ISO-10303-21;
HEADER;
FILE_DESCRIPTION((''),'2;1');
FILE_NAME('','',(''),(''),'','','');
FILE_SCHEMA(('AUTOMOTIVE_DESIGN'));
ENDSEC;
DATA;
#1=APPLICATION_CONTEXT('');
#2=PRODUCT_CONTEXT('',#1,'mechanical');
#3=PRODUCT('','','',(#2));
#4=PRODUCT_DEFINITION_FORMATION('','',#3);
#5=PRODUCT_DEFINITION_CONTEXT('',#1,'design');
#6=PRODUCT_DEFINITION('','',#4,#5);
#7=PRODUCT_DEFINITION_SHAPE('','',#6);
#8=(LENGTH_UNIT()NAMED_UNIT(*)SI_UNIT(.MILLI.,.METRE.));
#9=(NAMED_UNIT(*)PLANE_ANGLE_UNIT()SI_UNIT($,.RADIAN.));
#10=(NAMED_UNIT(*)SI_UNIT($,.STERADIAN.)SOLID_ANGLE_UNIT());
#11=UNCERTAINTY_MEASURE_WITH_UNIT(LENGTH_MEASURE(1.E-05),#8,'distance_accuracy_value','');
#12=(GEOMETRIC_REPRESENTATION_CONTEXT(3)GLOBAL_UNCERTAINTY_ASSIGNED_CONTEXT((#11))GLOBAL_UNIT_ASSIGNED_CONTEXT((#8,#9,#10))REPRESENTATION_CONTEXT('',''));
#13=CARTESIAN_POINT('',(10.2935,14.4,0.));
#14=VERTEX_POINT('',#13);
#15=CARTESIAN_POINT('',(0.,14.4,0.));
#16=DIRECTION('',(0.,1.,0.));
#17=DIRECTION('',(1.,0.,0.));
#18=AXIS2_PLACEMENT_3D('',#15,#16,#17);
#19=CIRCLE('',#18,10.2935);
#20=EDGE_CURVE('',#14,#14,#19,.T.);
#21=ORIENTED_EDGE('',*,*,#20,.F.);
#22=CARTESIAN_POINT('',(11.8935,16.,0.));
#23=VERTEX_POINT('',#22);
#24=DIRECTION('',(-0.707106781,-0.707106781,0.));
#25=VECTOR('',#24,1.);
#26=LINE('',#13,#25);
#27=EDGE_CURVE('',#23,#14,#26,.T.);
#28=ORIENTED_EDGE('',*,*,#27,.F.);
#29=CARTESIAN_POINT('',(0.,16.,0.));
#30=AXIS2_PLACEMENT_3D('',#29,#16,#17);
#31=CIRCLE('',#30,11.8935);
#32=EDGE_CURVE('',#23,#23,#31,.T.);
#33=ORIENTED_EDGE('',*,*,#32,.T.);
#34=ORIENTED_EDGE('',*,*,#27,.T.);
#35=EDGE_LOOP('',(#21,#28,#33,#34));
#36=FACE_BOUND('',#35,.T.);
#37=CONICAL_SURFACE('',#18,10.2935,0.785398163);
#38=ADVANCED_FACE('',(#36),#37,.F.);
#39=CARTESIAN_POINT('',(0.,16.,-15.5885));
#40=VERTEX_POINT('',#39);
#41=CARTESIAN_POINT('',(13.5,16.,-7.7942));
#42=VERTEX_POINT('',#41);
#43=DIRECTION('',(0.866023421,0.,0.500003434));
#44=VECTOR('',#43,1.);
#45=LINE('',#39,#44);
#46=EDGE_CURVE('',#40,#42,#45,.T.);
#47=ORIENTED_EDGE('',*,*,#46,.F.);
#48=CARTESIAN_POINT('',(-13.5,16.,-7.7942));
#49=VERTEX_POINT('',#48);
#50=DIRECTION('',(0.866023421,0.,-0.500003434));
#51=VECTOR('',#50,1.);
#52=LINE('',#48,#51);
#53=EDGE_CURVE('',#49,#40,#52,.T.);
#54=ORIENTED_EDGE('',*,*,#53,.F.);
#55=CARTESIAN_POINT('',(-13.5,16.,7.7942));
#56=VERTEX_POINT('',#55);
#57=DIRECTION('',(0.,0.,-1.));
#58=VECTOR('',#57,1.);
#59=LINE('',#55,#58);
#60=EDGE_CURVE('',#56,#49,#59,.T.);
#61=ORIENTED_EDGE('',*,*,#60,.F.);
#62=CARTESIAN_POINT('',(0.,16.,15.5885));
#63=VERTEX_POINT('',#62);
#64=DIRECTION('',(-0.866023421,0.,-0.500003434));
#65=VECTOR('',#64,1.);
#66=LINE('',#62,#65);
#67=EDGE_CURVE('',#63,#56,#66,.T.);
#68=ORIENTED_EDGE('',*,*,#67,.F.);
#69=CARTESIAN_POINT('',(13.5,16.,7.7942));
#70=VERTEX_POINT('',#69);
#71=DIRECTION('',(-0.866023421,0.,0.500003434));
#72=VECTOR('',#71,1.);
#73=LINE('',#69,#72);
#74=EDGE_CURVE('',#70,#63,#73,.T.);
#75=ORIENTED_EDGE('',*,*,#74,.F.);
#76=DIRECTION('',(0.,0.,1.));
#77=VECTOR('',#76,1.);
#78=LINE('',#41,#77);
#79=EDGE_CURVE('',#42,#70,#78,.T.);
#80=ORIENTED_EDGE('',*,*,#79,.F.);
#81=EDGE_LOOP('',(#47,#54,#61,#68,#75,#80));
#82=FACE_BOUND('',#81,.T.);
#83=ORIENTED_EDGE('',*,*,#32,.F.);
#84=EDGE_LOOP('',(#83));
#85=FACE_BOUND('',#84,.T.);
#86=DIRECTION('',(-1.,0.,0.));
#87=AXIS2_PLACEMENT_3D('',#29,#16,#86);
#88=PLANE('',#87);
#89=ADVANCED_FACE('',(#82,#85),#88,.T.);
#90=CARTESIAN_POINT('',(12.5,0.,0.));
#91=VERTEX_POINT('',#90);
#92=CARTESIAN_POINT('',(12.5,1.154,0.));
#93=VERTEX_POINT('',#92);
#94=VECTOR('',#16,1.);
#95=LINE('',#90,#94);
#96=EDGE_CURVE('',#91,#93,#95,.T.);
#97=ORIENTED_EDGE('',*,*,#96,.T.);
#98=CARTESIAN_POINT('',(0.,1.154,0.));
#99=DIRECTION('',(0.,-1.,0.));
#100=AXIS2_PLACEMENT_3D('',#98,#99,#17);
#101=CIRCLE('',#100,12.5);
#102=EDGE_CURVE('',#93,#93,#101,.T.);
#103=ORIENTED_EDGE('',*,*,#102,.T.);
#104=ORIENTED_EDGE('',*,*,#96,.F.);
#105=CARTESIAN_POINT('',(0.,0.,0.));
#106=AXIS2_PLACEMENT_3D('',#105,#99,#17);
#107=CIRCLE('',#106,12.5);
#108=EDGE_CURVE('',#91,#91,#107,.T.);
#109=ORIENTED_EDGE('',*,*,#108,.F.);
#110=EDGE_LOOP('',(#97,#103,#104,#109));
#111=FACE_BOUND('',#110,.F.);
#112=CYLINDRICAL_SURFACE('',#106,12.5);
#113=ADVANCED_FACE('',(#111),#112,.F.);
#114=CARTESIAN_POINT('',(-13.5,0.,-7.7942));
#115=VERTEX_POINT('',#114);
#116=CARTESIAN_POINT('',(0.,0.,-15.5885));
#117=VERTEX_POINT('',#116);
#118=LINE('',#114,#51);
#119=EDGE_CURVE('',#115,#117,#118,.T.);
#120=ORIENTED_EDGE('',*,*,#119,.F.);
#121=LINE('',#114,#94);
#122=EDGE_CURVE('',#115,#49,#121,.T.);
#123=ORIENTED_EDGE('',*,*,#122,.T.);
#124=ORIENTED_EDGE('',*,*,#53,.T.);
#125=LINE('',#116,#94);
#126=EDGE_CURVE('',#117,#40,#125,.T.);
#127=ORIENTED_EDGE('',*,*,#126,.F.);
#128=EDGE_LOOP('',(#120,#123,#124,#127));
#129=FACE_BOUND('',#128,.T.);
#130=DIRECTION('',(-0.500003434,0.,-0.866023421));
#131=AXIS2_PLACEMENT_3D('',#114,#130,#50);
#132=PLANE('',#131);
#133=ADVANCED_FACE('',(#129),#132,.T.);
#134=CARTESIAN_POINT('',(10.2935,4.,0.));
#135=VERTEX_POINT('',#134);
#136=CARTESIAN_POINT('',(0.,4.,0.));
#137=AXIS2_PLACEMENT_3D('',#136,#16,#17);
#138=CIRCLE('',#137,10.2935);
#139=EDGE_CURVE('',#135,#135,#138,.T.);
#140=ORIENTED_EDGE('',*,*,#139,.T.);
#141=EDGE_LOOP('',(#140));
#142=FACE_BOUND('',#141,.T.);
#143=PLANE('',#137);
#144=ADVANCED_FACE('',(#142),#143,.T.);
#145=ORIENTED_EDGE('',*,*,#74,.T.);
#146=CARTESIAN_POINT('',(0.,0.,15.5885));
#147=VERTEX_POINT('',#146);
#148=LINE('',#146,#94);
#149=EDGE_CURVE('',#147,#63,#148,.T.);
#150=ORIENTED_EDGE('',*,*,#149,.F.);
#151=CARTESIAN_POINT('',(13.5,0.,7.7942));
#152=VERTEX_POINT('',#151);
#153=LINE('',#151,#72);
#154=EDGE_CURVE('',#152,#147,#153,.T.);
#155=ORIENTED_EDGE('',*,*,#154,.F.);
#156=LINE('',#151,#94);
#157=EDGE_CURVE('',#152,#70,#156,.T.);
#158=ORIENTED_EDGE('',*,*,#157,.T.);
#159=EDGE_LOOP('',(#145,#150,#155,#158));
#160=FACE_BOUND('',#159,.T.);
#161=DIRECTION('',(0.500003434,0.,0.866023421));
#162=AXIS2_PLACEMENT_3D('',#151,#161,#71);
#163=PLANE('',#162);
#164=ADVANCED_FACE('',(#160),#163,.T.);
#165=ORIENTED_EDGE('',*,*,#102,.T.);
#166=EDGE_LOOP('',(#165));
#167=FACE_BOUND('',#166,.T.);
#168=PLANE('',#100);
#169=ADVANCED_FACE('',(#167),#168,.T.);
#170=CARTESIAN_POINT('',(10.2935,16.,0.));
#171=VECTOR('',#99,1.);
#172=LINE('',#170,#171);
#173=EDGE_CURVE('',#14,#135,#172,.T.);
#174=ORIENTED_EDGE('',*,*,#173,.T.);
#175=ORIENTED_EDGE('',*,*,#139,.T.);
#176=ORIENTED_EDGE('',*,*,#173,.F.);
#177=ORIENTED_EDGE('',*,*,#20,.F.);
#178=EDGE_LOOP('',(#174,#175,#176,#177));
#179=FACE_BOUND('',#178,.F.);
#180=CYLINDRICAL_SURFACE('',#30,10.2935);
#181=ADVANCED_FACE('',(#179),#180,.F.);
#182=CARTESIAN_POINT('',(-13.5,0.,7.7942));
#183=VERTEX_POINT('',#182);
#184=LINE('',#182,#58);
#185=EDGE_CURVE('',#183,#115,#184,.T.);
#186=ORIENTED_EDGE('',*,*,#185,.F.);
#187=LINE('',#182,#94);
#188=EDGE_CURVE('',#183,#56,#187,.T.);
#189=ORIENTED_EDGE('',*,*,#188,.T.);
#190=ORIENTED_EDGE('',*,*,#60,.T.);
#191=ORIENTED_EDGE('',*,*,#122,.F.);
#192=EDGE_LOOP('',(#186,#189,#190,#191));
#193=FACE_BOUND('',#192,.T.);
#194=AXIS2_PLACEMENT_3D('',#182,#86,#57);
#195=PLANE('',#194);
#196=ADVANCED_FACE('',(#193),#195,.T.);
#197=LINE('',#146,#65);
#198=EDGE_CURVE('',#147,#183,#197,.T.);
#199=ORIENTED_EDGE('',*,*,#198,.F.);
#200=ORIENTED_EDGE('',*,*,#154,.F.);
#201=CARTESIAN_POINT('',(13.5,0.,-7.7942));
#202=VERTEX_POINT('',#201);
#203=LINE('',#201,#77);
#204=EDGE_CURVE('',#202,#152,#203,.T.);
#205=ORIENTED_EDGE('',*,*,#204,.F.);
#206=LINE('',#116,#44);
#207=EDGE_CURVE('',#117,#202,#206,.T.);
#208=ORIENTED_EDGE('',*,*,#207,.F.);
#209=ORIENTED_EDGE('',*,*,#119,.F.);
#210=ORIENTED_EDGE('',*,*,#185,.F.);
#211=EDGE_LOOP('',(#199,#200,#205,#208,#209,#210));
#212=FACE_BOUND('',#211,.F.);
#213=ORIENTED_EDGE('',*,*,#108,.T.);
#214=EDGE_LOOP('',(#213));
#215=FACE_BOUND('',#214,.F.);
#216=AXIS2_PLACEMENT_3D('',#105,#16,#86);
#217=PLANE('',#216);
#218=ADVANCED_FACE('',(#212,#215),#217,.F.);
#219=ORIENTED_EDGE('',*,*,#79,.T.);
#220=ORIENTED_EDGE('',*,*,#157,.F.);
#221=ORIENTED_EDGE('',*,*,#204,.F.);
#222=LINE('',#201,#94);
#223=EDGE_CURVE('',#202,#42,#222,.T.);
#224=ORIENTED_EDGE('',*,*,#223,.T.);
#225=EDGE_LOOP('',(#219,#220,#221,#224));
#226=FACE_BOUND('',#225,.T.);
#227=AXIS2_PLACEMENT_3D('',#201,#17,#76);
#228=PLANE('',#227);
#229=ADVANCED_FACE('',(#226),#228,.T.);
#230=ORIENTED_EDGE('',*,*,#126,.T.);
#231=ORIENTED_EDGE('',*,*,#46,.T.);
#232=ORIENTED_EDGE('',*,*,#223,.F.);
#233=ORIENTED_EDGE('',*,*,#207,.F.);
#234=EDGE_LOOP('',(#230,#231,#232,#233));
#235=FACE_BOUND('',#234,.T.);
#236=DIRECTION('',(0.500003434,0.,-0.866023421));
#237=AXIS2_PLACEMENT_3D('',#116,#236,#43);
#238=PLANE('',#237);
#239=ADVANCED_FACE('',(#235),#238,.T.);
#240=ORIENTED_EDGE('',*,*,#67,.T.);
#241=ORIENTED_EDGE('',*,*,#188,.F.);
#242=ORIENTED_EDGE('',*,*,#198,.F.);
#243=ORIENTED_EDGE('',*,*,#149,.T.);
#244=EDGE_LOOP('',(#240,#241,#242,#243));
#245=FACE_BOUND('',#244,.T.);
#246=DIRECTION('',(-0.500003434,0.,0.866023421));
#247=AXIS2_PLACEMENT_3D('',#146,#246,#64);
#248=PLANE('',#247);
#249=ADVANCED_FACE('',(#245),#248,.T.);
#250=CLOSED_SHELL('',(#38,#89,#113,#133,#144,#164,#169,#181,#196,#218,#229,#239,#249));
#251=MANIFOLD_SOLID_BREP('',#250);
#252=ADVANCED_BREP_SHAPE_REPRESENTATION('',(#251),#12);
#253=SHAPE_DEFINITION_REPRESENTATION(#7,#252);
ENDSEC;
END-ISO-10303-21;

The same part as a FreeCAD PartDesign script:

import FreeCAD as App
import Part
import Sketcher

V = App.Vector
Q = App.Units.Quantity


def edges_at(feature, points):
    """Names of the edges that pass closest to the given points."""
    edges = feature.Shape.Edges
    near = lambda p: min(range(len(edges)), key=lambda i: edges[i].distToShape(Part.Vertex(*p))[0])
    return sorted({f"Edge{near(p) + 1}" for p in points})

doc = App.newDocument("Part")
body = doc.addObject("PartDesign::Body", "Body")

sketch1 = body.newObject("Sketcher::SketchObject", "Sketch")
sketch1.AttachmentSupport = (doc.getObject("XZ_Plane"), [""])
sketch1.MapMode = "FlatFace"
sketch1.addGeometry([
    Part.LineSegment(V(-13.5, 7.7942, 0), V(0, 15.5885, 0)),
    Part.LineSegment(V(0, 15.5885, 0), V(13.5, 7.7942, 0)),
    Part.LineSegment(V(13.5, 7.7942, 0), V(13.5, -7.7942, 0)),
    Part.LineSegment(V(13.5, -7.7942, 0), V(0, -15.5885, 0)),
    Part.LineSegment(V(0, -15.5885, 0), V(-13.5, -7.7942, 0)),
    Part.LineSegment(V(-13.5, -7.7942, 0), V(-13.5, 7.7942, 0)),
], False)
sketch1.addConstraint([
    Sketcher.Constraint("Coincident", 0, 2, 1, 1),
    Sketcher.Constraint("Coincident", 1, 2, 2, 1),
    Sketcher.Constraint("Coincident", 2, 2, 3, 1),
    Sketcher.Constraint("Coincident", 3, 2, 4, 1),
    Sketcher.Constraint("Coincident", 4, 2, 5, 1),
    Sketcher.Constraint("Coincident", 5, 2, 0, 1),
    Sketcher.Constraint("Vertical", 2),
    Sketcher.Constraint("Vertical", 5),
    Sketcher.Constraint("Symmetric", 0, 2, 3, 2, -1, 1),
    Sketcher.Constraint("Symmetric", 1, 2, 4, 2, -1, 1),
    Sketcher.Constraint("PointOnObject", 0, 2, -2),
    Sketcher.Constraint("Parallel", 0, 3),
    Sketcher.Constraint("Horizontal", 2, 2, 4, 2),
    Sketcher.Constraint("DistanceX", 4, 2, 2, 2, 27.0),
    Sketcher.Constraint("Angle", 0, Q("30.0002 deg")),
    Sketcher.Constraint("DistanceY", 2, 2, 2, 1, 15.5884),
])
pad1 = body.newObject("PartDesign::Pad", "Pad")
pad1.Profile = sketch1
pad1.Length = 16
pad1.Reversed = True

sketch2 = body.newObject("Sketcher::SketchObject", "Sketch001")
sketch2.AttachmentSupport = (doc.getObject("XZ_Plane"), [""])
sketch2.MapMode = "FlatFace"
sketch2.AttachmentOffset = App.Placement(V(0, 0, -16), App.Rotation())
sketch2.addGeometry(Part.Circle(V(0, 0, 0), V(0, 0, 1), 10.2935), False)
sketch2.addConstraint([
    Sketcher.Constraint("Coincident", 0, 3, -1, 1),
    Sketcher.Constraint("Diameter", 0, 20.587),
])
pocket1 = body.newObject("PartDesign::Pocket", "Pocket")
pocket1.Profile = sketch2
pocket1.Length = 12
pocket1.Reversed = True
doc.recompute()

chamfer = body.newObject("PartDesign::Chamfer", "Chamfer")
chamfer.Base = (pocket1, edges_at(pocket1, [(-10.293, 16, 0)]))
chamfer.Size = 1.6

sketch3 = body.newObject("Sketcher::SketchObject", "Sketch002")
sketch3.AttachmentSupport = (doc.getObject("XZ_Plane"), [""])
sketch3.MapMode = "FlatFace"
sketch3.addGeometry(Part.Circle(V(0, 0, 0), V(0, 0, 1), 12.5), False)
sketch3.addConstraint([
    Sketcher.Constraint("Coincident", 0, 3, -1, 1),
    Sketcher.Constraint("Diameter", 0, 25.0),
])
pocket2 = body.newObject("PartDesign::Pocket", "Pocket001")
pocket2.Profile = sketch3
pocket2.Length = 1.154

doc.recompute()
